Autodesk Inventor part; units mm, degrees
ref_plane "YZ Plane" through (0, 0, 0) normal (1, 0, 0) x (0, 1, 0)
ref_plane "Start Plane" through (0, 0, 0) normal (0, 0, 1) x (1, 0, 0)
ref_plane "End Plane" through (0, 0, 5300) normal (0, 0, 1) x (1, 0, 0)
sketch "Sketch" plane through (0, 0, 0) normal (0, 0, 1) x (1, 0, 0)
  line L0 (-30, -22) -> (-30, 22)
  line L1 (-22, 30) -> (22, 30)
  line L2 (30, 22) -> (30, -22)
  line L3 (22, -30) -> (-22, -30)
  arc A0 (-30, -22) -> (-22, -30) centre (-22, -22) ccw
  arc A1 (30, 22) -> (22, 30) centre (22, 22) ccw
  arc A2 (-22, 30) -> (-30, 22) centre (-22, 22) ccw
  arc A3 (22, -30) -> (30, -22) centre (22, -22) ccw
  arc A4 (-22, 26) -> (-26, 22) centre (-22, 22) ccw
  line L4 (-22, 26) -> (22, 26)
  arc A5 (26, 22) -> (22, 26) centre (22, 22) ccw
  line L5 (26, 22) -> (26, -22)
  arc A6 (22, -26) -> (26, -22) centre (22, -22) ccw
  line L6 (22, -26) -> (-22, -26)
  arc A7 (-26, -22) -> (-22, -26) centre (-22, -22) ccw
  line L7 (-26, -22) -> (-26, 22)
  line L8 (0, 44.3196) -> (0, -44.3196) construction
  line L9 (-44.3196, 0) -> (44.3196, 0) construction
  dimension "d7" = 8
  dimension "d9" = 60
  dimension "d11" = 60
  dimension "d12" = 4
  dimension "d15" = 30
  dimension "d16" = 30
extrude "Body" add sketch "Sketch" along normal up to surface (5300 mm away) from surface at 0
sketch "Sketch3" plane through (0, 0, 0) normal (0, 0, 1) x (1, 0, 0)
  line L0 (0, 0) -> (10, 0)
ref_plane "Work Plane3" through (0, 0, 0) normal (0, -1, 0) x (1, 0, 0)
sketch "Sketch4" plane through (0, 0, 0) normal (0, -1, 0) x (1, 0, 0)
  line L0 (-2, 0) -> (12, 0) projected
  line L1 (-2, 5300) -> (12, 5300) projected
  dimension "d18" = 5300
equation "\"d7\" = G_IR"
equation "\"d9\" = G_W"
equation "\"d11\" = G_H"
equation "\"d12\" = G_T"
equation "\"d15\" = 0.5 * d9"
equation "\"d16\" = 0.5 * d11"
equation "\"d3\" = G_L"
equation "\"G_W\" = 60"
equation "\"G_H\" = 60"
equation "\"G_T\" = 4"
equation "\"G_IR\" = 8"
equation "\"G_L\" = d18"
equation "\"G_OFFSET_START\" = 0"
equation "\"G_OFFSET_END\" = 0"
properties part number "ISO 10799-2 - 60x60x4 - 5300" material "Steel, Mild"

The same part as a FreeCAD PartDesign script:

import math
import FreeCAD as App
import Part
import Sketcher
Q = App.Units.Quantity

doc = App.newDocument("Part")
params = doc.addObject("Spreadsheet::Sheet", "Params")
for row, (alias, value) in enumerate([
    ("sketch1_radius", "8 mm"),
    ("sketch1_radius2", "4 mm"),
    ("pad1_length", "5300 mm"),
], start=1):
    params.set(f"A{row}", alias)
    params.set(f"B{row}", "=" + value)
    params.setAlias(f"B{row}", alias)

body = doc.addObject("PartDesign::Body", "Body")

sketch1 = body.newObject("Sketcher::SketchObject", "Sketch")
sketch1.AttachmentSupport = (doc.getObject("XY_Plane"), [""])
sketch1.MapMode = "FlatFace"
sketch1.addGeometry([
    Part.LineSegment(App.Vector(-30, 22, 0), App.Vector(-30, -22, 0)),
    Part.ArcOfCircle(Part.Circle(App.Vector(-22, -22, 0), App.Vector(0, 0, 1), 8), math.radians(180), math.radians(270)),
    Part.LineSegment(App.Vector(-22, -30, 0), App.Vector(22, -30, 0)),
    Part.ArcOfCircle(Part.Circle(App.Vector(22, -22, 0), App.Vector(0, 0, 1), 8), math.radians(-90), math.radians(0)),
    Part.LineSegment(App.Vector(30, -22, 0), App.Vector(30, 22, 0)),
    Part.ArcOfCircle(Part.Circle(App.Vector(22, 22, 0), App.Vector(0, 0, 1), 8), math.radians(0), math.radians(90)),
    Part.LineSegment(App.Vector(22, 30, 0), App.Vector(-22, 30, 0)),
    Part.ArcOfCircle(Part.Circle(App.Vector(-22, 22, 0), App.Vector(0, 0, 1), 8), math.radians(90), math.radians(180)),
    Part.ArcOfCircle(Part.Circle(App.Vector(-22, 22, 0), App.Vector(0, 0, 1), 4), math.radians(90), math.radians(180)),
    Part.LineSegment(App.Vector(-22, 26, 0), App.Vector(22, 26, 0)),
    Part.ArcOfCircle(Part.Circle(App.Vector(22, 22, 0), App.Vector(0, 0, 1), 4), math.radians(0), math.radians(90)),
    Part.LineSegment(App.Vector(26, 22, 0), App.Vector(26, -22, 0)),
    Part.ArcOfCircle(Part.Circle(App.Vector(22, -22, 0), App.Vector(0, 0, 1), 4), math.radians(-90), math.radians(0)),
    Part.LineSegment(App.Vector(22, -26, 0), App.Vector(-22, -26, 0)),
    Part.ArcOfCircle(Part.Circle(App.Vector(-22, -22, 0), App.Vector(0, 0, 1), 4), math.radians(180), math.radians(270)),
    Part.LineSegment(App.Vector(-26, -22, 0), App.Vector(-26, 22, 0)),
], False)
sketch1.addConstraint([
    Sketcher.Constraint("Tangent", 0, 2, 1, 1),
    Sketcher.Constraint("Tangent", 1, 2, 2, 1),
    Sketcher.Constraint("Tangent", 2, 2, 3, 1),
    Sketcher.Constraint("Tangent", 3, 2, 4, 1),
    Sketcher.Constraint("Tangent", 4, 2, 5, 1),
    Sketcher.Constraint("Tangent", 5, 2, 6, 1),
    Sketcher.Constraint("Tangent", 6, 2, 7, 1),
    Sketcher.Constraint("Tangent", 7, 2, 0, 1),
    Sketcher.Constraint("Tangent", 8, 1, 9, 1),
    Sketcher.Constraint("Tangent", 9, 2, 10, 2),
    Sketcher.Constraint("Tangent", 10, 1, 11, 1),
    Sketcher.Constraint("Tangent", 11, 2, 12, 2),
    Sketcher.Constraint("Tangent", 12, 1, 13, 1),
    Sketcher.Constraint("Tangent", 13, 2, 14, 2),
    Sketcher.Constraint("Tangent", 14, 1, 15, 1),
    Sketcher.Constraint("Tangent", 15, 2, 8, 2),
    Sketcher.Constraint("Vertical", 0),
    Sketcher.Constraint("Horizontal", 2),
    Sketcher.Constraint("Vertical", 4),
    Sketcher.Constraint("Horizontal", 6),
    Sketcher.Constraint("Horizontal", 9),
    Sketcher.Constraint("Vertical", 11),
    Sketcher.Constraint("Horizontal", 13),
    Sketcher.Constraint("Vertical", 15),
    Sketcher.Constraint("Coincident", 8, 3, 7, 3),
    Sketcher.Constraint("Coincident", 10, 3, 5, 3),
    Sketcher.Constraint("Coincident", 12, 3, 3, 3),
    Sketcher.Constraint("Equal", 1, 3),
    Sketcher.Constraint("Equal", 3, 5),
    Sketcher.Constraint("Equal", 5, 7),
    Sketcher.Constraint("Equal", 12, 14),
    Sketcher.Constraint("Symmetric", 1, 3, 5, 3, -1, 1),
    Sketcher.Constraint("Equal", 13, 0),
    Sketcher.Constraint("Radius", 1, Q("8 mm")),
    Sketcher.Constraint("Radius", 8, Q("4 mm")),
    Sketcher.Constraint("DistanceX", 0, 2, -1, 1, Q("30 mm")),
])
sketch1.setExpression("Constraints[33]", "Params.sketch1_radius")
sketch1.setExpression("Constraints[34]", "Params.sketch1_radius2")
pad1 = body.newObject("PartDesign::Pad", "Pad")
pad1.Profile = sketch1
pad1.setExpression("Length", "Params.pad1_length")

doc.recompute()
